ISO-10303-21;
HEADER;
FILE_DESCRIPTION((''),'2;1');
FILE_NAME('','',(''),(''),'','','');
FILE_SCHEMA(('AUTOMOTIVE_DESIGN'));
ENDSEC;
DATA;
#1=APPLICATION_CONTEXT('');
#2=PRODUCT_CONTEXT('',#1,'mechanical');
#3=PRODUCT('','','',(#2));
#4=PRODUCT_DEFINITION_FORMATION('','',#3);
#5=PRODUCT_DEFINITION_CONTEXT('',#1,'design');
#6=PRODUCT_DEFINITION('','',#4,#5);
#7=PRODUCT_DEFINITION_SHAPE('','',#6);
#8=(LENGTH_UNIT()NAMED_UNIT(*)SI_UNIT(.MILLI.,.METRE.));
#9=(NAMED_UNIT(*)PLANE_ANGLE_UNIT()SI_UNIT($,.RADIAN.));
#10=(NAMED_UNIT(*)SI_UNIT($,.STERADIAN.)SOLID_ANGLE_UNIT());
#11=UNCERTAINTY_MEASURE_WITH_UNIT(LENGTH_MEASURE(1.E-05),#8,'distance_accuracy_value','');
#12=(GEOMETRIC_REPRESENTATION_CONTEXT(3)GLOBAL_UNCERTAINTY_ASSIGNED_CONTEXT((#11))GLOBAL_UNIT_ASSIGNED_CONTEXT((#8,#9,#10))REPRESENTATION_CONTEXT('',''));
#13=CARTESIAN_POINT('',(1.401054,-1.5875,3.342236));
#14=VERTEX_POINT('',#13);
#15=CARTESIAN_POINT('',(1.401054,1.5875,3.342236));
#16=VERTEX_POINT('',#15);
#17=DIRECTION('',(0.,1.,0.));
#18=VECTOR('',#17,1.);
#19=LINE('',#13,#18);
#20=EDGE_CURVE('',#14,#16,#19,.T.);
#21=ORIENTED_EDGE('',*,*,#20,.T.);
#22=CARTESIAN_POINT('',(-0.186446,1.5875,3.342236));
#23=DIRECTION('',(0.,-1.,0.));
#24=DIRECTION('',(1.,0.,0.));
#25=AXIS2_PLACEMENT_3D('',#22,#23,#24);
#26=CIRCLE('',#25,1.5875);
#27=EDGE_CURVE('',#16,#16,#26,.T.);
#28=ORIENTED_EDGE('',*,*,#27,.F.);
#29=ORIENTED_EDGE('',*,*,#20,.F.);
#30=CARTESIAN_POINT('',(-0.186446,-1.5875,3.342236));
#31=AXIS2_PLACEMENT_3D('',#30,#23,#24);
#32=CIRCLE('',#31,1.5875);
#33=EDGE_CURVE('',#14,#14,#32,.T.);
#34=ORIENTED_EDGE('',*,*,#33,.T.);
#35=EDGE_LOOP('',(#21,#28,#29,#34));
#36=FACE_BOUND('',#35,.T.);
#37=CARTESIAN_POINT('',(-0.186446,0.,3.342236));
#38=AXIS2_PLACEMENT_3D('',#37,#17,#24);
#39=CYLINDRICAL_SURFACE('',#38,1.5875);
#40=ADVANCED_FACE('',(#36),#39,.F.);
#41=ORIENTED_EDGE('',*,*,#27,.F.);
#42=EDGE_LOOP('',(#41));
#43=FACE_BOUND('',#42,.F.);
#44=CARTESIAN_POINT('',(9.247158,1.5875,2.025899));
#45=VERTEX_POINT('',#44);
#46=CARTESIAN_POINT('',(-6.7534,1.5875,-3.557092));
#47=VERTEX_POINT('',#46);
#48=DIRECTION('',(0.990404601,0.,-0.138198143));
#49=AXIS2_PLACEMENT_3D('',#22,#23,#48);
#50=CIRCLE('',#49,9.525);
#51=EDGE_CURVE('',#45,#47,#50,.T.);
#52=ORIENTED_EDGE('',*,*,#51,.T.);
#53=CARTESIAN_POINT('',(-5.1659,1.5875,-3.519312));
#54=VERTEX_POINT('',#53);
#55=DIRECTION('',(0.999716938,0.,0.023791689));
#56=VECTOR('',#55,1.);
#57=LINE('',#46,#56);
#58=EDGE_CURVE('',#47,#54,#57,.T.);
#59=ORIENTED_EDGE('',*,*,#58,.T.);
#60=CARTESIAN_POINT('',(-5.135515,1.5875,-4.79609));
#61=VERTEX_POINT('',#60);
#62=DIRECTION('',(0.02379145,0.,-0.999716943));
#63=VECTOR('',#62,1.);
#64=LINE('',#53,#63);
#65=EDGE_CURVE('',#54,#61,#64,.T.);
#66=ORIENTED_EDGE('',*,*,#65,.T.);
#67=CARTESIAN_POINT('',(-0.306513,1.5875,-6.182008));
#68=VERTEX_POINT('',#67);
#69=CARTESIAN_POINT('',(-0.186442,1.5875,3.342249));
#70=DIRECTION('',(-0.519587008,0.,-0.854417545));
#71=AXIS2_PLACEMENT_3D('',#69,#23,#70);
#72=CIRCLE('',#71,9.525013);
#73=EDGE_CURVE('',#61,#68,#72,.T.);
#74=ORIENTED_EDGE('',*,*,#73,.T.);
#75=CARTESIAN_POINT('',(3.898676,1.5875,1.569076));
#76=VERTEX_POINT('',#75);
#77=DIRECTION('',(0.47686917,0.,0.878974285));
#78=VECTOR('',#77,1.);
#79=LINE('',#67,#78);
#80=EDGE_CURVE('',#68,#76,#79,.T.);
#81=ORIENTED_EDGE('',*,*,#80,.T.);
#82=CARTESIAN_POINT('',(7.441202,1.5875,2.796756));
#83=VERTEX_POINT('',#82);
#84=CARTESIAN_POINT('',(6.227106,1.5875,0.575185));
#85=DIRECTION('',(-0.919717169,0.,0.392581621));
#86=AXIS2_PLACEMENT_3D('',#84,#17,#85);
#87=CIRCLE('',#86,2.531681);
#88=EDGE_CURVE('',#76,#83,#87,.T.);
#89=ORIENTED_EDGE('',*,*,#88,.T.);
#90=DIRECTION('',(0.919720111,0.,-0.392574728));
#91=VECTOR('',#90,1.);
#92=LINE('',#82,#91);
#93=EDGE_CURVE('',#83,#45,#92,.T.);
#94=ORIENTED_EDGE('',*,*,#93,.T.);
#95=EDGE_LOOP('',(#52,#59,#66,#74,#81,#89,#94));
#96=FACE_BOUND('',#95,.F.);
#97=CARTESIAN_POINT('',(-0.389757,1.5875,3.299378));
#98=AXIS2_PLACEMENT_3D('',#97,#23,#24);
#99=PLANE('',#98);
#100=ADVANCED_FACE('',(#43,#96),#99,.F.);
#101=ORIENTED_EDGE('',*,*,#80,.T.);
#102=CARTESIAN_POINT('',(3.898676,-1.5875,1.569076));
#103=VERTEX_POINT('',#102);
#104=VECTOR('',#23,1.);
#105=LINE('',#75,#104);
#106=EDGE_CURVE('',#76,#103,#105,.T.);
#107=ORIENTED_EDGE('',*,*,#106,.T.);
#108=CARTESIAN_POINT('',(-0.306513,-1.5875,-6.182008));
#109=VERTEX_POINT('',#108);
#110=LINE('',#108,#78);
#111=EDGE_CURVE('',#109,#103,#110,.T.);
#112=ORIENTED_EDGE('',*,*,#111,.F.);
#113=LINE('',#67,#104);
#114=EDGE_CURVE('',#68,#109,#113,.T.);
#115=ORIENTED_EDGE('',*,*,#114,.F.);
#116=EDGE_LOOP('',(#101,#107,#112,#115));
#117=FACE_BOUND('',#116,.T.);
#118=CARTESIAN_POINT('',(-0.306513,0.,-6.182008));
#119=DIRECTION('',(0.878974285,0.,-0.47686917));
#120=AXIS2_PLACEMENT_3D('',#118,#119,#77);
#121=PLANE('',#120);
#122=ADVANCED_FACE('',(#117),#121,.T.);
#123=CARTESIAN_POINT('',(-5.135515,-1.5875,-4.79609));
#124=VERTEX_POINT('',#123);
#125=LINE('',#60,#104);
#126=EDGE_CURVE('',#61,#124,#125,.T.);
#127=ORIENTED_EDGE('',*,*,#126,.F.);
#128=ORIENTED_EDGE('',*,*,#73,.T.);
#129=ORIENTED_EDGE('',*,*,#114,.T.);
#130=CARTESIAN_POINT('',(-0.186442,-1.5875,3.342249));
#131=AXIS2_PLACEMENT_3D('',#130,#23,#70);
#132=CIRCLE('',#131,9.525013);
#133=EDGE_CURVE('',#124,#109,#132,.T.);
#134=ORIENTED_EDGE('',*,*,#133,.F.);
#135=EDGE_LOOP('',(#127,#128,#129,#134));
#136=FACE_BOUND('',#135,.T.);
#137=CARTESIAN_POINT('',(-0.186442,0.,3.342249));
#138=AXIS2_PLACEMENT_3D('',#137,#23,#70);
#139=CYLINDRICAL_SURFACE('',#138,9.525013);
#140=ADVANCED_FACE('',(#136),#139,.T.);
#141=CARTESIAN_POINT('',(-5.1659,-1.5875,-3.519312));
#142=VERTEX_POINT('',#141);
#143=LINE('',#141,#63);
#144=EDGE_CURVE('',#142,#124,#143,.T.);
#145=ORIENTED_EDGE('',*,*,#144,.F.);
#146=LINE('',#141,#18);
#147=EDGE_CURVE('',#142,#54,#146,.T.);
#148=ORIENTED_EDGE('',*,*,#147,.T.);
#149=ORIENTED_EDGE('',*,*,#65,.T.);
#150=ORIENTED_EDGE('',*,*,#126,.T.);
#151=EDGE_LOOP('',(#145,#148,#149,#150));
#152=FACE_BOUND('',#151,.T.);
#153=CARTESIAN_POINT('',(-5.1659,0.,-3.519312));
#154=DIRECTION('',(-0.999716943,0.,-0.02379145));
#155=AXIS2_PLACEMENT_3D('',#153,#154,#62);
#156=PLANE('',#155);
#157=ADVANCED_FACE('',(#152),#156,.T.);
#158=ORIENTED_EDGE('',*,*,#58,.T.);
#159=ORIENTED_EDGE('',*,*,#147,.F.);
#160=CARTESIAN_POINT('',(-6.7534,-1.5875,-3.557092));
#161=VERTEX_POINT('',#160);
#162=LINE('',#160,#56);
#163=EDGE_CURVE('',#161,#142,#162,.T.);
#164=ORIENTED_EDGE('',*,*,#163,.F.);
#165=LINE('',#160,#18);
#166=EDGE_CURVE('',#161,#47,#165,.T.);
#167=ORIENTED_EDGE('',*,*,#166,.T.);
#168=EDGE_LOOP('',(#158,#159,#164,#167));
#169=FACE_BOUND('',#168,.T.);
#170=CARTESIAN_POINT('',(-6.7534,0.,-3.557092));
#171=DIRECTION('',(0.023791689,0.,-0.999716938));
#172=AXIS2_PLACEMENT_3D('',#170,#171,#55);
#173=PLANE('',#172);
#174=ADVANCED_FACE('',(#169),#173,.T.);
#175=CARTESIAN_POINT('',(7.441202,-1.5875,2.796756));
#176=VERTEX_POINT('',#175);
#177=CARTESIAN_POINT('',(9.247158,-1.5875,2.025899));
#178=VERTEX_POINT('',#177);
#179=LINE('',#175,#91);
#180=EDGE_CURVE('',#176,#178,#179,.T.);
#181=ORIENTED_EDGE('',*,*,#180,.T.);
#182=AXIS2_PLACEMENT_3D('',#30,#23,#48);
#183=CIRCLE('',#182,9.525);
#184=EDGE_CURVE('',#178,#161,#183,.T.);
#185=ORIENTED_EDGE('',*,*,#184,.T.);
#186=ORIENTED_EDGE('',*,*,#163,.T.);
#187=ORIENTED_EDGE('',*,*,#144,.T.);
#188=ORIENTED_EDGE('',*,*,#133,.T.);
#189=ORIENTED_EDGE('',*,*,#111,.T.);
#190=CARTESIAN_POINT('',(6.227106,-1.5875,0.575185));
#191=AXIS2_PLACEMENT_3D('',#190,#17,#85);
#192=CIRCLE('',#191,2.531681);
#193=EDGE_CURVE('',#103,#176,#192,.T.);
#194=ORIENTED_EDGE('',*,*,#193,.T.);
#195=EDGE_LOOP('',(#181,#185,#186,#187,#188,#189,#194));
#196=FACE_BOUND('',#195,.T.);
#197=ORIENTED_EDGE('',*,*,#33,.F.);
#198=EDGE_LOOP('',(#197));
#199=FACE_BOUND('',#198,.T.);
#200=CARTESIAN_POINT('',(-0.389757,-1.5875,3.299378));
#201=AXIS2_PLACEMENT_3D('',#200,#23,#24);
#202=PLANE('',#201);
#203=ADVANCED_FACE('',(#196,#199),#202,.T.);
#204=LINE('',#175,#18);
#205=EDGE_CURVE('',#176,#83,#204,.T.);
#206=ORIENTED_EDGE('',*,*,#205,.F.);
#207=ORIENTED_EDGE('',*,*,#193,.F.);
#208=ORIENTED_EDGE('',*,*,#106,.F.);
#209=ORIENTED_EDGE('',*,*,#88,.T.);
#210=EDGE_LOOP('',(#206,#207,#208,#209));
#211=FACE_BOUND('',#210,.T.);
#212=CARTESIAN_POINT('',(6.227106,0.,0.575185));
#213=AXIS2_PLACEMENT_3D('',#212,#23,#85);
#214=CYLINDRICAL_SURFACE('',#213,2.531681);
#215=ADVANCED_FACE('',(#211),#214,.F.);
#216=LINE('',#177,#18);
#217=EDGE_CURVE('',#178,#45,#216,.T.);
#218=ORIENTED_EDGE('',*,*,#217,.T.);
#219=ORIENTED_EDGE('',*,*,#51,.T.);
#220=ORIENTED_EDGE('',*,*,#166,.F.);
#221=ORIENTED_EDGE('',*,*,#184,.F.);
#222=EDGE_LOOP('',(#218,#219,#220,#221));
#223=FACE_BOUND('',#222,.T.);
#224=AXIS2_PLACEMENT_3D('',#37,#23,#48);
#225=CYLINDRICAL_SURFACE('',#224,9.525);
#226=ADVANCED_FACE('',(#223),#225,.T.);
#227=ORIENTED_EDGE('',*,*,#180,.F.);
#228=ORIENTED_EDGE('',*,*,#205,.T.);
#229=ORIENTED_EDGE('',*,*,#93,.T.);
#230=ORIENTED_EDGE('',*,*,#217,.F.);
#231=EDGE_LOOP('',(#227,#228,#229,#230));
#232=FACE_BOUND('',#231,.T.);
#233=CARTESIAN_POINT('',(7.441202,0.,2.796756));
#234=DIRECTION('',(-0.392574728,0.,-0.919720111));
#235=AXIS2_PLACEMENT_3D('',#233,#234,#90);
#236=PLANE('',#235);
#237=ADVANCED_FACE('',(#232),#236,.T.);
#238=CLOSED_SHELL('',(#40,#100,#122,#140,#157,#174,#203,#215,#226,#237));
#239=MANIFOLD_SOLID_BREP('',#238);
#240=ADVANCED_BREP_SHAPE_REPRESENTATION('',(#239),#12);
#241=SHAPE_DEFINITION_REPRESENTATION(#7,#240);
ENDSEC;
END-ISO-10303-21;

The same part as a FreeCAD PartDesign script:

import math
import FreeCAD as App
import Part
import Sketcher
from FreeCAD import Vector
Q = App.Units.Quantity

doc = App.newDocument("Part")
params = doc.addObject("Spreadsheet::Sheet", "Params")
for row, (alias, value) in enumerate([
    ("sketch1_diameter", "0.125 in"),
    ("sketch1_radius", "0.375 in"),
    ("pad1_length", "0.125 in"),
], start=1):
    params.set(f"A{row}", alias)
    params.set(f"B{row}", "=" + value)
    params.setAlias(f"B{row}", alias)

body = doc.addObject("PartDesign::Body", "Body")

# Sketch on XZ plane
sketch1 = doc.addObject("Sketcher::SketchObject", "Sketch")
body.addObject(sketch1)
sketch1.AttachmentSupport = (doc.XZ_Plane, [""])
sketch1.MapMode = "FlatFace"
sketch1.addGeometry(Part.LineSegment(Vector(-5.2, -3.5, 0), Vector(-5.1, -4.8, 0)), False)
sketch1.addGeometry(Part.ArcOfCircle(Part.Circle(Vector(-0.2, 3.3, 0), Vector(0, 0, 1), 9.5), math.radians(-121), math.radians(-91)), False)
sketch1.addGeometry(Part.LineSegment(Vector(-0.3, -6.2, 0), Vector(3.9, 1.6, 0)), False)
sketch1.addGeometry(Part.ArcOfCircle(Part.Circle(Vector(6.2, 0.6, 0), Vector(0, 0, 1), 2.5), math.radians(61), math.radians(157)), False)
sketch1.addGeometry(Part.LineSegment(Vector(7.4, 2.8, 0), Vector(9.2, 2, 0)), False)
sketch1.addGeometry(Part.ArcOfCircle(Part.Circle(Vector(-0.2, 3.3, 0), Vector(0, 0, 1), 9.5), math.radians(-8), math.radians(226)), False)
sketch1.addGeometry(Part.LineSegment(Vector(-6.8, -3.6, 0), Vector(-5.2, -3.5, 0)), False)
sketch1.addGeometry(Part.Circle(Vector(-0.2, 3.3, 0), Vector(0, 0, 1), 1.6), False)
sketch1.addConstraint(Sketcher.Constraint("Coincident", 0, 2, 1, 1))
sketch1.addConstraint(Sketcher.Constraint("Coincident", 1, 2, 2, 1))
sketch1.addConstraint(Sketcher.Constraint("Coincident", 2, 2, 3, 2))
sketch1.addConstraint(Sketcher.Constraint("Coincident", 3, 1, 4, 1))
sketch1.addConstraint(Sketcher.Constraint("Coincident", 4, 2, 5, 1))
sketch1.addConstraint(Sketcher.Constraint("Coincident", 5, 2, 6, 1))
sketch1.addConstraint(Sketcher.Constraint("Coincident", 6, 2, 0, 1))
sketch1.addConstraint(Sketcher.Constraint("Coincident", 7, 3, 5, 3))
sketch1.addConstraint(Sketcher.Constraint("Perpendicular", 0, 6))
sketch1.addConstraint(Sketcher.Constraint("Diameter", 7, Q("0.125 in")))
sketch1.addConstraint(Sketcher.Constraint("Radius", 5, Q("0.375 in")))
sketch1.addConstraint(Sketcher.Constraint("Radius", 3, Q("2.531681 mm")))
sketch1.addConstraint(Sketcher.Constraint("DistanceX", 5, 2, 6, 2, Q("0.0625 in")))
sketch1.addConstraint(Sketcher.Constraint("Radius", 1, Q("9.525013 mm")))
sketch1.addConstraint(Sketcher.Constraint("DistanceX", -1, 1, 3, 1, Q("7.441202 mm")))
sketch1.addConstraint(Sketcher.Constraint("DistanceY", -1, 1, 4, 2, Q("2.025899 mm")))
sketch1.addConstraint(Sketcher.Constraint("DistanceX", 5, 2, -1, 1, Q("6.7534 mm")))
sketch1.addConstraint(Sketcher.Constraint("DistanceX", 1, 3, 4, 2, Q("9.4336 mm")))
sketch1.addConstraint(Sketcher.Constraint("DistanceY", 0, 2, 5, 2, Q("1.238998 mm")))
sketch1.addConstraint(Sketcher.Constraint("Distance", 0, Q("1.27714 mm")))
sketch1.addConstraint(Sketcher.Constraint("Distance", 2, Q("8.818329 mm")))
sketch1.addConstraint(Sketcher.Constraint("DistanceX", 1, 3, -1, 1, Q("0.186442 mm")))
sketch1.addConstraint(Sketcher.Constraint("DistanceY", -1, 1, 1, 3, Q("3.342249 mm")))
sketch1.addConstraint(Sketcher.Constraint("DistanceX", 1, 3, 3, 3, Q("6.413548 mm")))
sketch1.addConstraint(Sketcher.Constraint("DistanceY", 3, 3, 5, 3, Q("2.767052 mm")))
sketch1.addConstraint(Sketcher.Constraint("DistanceX", 1, 2, 3, 3, Q("6.533619 mm")))
sketch1.setExpression("Constraints[9]", "Params.sketch1_diameter")
sketch1.setExpression("Constraints[10]", "Params.sketch1_radius")
pad1 = doc.addObject("PartDesign::Pad", "Pad")
body.addObject(pad1)
pad1.Profile = sketch1
pad1.setExpression("Length", "Params.pad1_length")
pad1.Midplane = True

doc.recompute()
